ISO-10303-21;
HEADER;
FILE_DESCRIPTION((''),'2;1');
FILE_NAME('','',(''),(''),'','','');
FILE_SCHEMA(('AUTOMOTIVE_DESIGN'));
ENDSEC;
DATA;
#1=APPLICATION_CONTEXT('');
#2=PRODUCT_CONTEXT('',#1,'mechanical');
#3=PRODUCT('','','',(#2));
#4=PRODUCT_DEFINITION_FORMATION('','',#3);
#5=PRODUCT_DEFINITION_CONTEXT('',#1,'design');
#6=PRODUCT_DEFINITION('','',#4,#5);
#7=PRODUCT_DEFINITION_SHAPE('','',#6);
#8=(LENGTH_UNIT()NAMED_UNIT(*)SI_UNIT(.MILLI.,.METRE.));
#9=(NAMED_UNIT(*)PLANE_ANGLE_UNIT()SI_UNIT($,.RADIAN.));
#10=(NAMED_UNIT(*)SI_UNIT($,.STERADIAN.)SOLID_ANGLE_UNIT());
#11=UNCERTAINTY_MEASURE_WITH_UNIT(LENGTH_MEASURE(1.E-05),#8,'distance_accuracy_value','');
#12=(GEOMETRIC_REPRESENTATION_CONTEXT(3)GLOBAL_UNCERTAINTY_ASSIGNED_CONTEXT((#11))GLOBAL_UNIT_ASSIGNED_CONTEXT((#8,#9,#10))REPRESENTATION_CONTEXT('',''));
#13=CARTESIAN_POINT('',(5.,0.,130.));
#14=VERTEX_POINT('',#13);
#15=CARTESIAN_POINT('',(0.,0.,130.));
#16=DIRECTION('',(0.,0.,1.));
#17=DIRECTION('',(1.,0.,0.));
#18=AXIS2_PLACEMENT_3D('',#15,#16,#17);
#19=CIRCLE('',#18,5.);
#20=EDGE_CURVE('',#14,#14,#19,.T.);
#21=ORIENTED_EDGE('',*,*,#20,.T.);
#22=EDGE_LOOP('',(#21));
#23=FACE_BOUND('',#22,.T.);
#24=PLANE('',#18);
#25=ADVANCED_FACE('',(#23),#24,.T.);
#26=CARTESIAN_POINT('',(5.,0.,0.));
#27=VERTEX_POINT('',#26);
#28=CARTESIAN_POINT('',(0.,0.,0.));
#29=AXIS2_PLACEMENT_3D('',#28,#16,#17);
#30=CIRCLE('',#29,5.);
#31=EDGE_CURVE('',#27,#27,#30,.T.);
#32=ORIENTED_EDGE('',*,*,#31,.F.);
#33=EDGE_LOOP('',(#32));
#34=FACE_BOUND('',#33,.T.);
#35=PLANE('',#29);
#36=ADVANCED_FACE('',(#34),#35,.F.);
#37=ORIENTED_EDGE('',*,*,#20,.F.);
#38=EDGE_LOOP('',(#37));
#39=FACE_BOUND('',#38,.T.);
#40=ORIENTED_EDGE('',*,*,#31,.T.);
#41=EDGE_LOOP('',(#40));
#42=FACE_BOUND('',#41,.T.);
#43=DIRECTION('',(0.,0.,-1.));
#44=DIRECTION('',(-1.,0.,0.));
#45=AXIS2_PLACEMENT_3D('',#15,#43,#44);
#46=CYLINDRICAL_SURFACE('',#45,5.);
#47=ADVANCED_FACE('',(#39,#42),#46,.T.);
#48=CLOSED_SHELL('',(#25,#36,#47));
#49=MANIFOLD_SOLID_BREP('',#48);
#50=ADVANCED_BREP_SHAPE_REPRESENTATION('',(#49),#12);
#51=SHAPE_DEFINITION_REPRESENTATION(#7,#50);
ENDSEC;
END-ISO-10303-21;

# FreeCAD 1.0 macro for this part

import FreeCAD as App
import Part
import Sketcher

doc = App.newDocument("Part")
body = doc.addObject("PartDesign::Body", "Body")

# Sketch on XY plane
sketch1 = doc.addObject("Sketcher::SketchObject", "Sketch")
body.addObject(sketch1)
sketch1.AttachmentSupport = (doc.XY_Plane, [""])
sketch1.MapMode = "FlatFace"
sketch1.addGeometry(Part.Circle(App.Vector(0, 0, 0), App.Vector(0, 0, 1), 5), False)
sketch1.addConstraint([
    Sketcher.Constraint("Coincident", 0, 3, -1, 1),
    Sketcher.Constraint("Diameter", 0, 10.0),
])
pad1 = doc.addObject("PartDesign::Pad", "Pad")
body.addObject(pad1)
pad1.Profile = sketch1
pad1.Length = 130

doc.recompute()
